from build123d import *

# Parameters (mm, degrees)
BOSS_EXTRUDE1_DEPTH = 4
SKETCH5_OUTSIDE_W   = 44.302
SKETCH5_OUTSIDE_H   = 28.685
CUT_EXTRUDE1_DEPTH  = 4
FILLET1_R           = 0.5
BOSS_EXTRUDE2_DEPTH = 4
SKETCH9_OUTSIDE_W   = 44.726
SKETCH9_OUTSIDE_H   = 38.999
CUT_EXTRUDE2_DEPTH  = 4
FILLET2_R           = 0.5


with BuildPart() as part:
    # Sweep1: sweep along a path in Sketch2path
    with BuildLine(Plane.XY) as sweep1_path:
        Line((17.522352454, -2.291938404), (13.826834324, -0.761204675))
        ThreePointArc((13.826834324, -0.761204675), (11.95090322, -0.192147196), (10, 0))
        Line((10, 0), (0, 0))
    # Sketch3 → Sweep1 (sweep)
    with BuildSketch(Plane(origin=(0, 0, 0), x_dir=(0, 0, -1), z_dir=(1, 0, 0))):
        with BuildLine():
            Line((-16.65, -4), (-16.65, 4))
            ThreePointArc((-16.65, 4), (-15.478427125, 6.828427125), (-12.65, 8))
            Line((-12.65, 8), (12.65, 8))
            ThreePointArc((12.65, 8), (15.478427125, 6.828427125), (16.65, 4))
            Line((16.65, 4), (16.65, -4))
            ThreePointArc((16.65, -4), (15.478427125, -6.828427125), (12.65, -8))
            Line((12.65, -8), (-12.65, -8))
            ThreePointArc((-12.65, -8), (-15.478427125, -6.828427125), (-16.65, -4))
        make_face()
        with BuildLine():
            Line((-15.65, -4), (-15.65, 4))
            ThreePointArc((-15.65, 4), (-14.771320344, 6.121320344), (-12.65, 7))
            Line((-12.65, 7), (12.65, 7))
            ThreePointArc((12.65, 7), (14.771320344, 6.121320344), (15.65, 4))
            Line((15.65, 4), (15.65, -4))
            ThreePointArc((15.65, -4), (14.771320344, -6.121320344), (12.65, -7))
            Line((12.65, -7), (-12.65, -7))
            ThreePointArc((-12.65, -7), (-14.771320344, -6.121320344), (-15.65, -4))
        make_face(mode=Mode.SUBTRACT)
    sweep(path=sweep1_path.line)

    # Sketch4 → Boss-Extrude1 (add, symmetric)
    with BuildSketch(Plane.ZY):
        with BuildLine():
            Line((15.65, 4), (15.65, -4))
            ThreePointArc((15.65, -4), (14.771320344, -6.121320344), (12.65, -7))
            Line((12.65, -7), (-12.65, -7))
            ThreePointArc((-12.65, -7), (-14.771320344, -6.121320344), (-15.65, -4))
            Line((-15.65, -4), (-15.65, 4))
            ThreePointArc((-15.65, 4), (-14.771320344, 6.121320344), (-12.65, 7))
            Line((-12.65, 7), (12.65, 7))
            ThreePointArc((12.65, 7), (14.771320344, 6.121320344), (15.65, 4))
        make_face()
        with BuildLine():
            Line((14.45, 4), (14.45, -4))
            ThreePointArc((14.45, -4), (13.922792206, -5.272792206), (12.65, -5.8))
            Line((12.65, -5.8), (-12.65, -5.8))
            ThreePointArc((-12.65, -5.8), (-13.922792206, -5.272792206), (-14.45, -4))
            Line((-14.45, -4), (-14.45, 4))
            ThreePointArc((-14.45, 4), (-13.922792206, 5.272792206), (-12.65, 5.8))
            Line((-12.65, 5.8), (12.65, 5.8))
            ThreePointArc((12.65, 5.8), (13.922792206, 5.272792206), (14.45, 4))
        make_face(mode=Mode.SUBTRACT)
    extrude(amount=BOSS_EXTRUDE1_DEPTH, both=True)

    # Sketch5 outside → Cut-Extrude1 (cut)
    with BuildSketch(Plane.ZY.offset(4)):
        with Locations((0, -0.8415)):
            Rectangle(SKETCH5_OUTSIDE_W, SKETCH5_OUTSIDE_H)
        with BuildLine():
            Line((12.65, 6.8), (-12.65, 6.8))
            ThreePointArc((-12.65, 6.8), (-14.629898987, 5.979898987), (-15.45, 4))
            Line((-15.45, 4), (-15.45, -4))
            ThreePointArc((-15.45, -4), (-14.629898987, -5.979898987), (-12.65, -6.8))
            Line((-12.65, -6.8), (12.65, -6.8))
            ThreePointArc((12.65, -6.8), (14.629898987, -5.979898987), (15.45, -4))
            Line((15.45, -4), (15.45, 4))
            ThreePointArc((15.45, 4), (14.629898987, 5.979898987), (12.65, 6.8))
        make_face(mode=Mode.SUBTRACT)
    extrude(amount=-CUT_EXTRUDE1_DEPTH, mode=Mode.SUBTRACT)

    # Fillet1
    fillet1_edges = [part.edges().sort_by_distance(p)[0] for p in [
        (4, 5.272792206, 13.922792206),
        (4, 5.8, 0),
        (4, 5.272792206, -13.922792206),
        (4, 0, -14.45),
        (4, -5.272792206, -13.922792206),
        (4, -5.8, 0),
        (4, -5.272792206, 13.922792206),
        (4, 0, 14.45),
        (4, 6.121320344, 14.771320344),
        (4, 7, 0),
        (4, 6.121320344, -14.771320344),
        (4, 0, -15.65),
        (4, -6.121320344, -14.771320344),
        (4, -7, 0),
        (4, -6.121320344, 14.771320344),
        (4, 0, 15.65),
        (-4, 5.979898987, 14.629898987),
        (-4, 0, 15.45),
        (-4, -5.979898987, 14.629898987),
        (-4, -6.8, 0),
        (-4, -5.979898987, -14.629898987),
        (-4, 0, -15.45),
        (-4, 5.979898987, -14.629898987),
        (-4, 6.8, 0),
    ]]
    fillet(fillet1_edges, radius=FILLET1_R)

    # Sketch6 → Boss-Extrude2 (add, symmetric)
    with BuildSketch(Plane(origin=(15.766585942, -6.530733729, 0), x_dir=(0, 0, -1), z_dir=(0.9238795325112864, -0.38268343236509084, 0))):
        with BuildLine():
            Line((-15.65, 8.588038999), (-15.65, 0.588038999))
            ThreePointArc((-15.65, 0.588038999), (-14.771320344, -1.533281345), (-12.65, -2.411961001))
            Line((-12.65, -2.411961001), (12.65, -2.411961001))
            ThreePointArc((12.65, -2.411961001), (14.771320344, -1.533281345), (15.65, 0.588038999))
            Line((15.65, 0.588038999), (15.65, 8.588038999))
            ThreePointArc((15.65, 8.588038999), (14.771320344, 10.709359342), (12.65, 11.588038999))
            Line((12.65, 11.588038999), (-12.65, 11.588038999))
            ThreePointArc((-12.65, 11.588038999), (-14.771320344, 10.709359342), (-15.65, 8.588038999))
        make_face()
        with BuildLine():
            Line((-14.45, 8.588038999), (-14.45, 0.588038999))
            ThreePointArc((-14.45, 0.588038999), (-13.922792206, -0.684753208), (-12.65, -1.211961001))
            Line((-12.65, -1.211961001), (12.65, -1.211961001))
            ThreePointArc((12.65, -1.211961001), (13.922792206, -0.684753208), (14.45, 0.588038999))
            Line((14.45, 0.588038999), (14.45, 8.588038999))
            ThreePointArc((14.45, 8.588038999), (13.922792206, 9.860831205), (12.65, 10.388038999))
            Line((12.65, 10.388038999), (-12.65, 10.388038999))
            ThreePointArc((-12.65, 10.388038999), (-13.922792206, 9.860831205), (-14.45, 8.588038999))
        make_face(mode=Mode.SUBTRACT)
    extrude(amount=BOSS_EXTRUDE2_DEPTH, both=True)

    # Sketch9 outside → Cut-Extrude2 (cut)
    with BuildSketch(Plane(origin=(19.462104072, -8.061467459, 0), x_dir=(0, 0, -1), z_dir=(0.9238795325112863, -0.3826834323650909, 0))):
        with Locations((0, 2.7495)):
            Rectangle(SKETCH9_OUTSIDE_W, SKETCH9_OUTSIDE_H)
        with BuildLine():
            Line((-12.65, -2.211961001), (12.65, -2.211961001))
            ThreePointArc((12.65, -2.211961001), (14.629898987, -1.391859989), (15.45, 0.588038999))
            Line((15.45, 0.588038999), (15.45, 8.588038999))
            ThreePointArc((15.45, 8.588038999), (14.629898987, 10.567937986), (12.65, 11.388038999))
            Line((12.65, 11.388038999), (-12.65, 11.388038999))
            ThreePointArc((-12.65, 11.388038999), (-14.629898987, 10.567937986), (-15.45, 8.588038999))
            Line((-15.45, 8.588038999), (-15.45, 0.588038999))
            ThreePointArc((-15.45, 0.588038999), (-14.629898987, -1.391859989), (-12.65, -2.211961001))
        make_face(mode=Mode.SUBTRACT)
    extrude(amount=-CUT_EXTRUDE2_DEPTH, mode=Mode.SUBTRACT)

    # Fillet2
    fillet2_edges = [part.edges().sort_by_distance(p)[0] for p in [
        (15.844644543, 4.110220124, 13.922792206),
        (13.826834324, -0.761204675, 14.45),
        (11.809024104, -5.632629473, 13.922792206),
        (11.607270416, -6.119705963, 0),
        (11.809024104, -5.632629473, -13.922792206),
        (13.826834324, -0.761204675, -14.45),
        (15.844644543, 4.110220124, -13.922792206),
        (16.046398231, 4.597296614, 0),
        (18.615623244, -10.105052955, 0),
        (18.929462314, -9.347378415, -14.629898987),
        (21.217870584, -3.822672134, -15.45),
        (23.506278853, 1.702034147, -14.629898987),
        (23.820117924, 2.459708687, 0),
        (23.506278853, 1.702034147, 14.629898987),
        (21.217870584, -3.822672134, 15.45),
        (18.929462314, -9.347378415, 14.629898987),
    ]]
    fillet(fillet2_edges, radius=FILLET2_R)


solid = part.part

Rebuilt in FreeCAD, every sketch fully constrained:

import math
import FreeCAD as App
import Part
import Sketcher

V = App.Vector
Q = App.Units.Quantity


def edges_at(feature, points):
    """Names of the edges that pass closest to the given points."""
    edges = feature.Shape.Edges
    near = lambda p: min(range(len(edges)), key=lambda i: edges[i].distToShape(Part.Vertex(*p))[0])
    return sorted({f"Edge{near(p) + 1}" for p in points})

doc = App.newDocument("Part")
body = doc.addObject("PartDesign::Body", "Body")

sketch1 = body.newObject("Sketcher::SketchObject", "Sketch")
sketch1.AttachmentSupport = (doc.getObject("YZ_Plane"), [""])
sketch1.MapMode = "FlatFace"
sketch1.addGeometry([
    Part.LineSegment(V(4, 16.6, 0), V(-4, 16.6, 0)),
    Part.ArcOfCircle(Part.Circle(V(-4, 12.7, 0), V(0, 0, 1), 4), math.radians(90), math.radians(180)),
    Part.LineSegment(V(-8, 12.7, 0), V(-8, -12.7, 0)),
    Part.ArcOfCircle(Part.Circle(V(-4, -12.7, 0), V(0, 0, 1), 4), math.radians(180), math.radians(270)),
    Part.LineSegment(V(-4, -16.6, 0), V(4, -16.6, 0)),
    Part.ArcOfCircle(Part.Circle(V(4, -12.7, 0), V(0, 0, 1), 4), math.radians(-90), math.radians(0)),
    Part.LineSegment(V(8, -12.7, 0), V(8, 12.7, 0)),
    Part.ArcOfCircle(Part.Circle(V(4, 12.7, 0), V(0, 0, 1), 4), math.radians(0), math.radians(90)),
    Part.LineSegment(V(-4, 15.7, 0), V(4, 15.7, 0)),
    Part.ArcOfCircle(Part.Circle(V(4, 12.7, 0), V(0, 0, 1), 3), math.radians(0), math.radians(90)),
    Part.LineSegment(V(7, 12.7, 0), V(7, -12.7, 0)),
    Part.ArcOfCircle(Part.Circle(V(4, -12.7, 0), V(0, 0, 1), 3), math.radians(-90), math.radians(0)),
    Part.LineSegment(V(4, -15.7, 0), V(-4, -15.7, 0)),
    Part.ArcOfCircle(Part.Circle(V(-4, -12.7, 0), V(0, 0, 1), 3), math.radians(180), math.radians(270)),
    Part.LineSegment(V(-7, -12.7, 0), V(-7, 12.7, 0)),
    Part.ArcOfCircle(Part.Circle(V(-4, 12.7, 0), V(0, 0, 1), 3), math.radians(90), math.radians(180)),
], False)
sketch1.addConstraint([
    Sketcher.Constraint("Tangent", 0, 2, 1, 1),
    Sketcher.Constraint("Tangent", 1, 2, 2, 1),
    Sketcher.Constraint("Tangent", 2, 2, 3, 1),
    Sketcher.Constraint("Tangent", 3, 2, 4, 1),
    Sketcher.Constraint("Tangent", 4, 2, 5, 1),
    Sketcher.Constraint("Tangent", 5, 2, 6, 1),
    Sketcher.Constraint("Tangent", 6, 2, 7, 1),
    Sketcher.Constraint("Tangent", 7, 2, 0, 1),
    Sketcher.Constraint("Tangent", 8, 2, 9, 2),
    Sketcher.Constraint("Tangent", 9, 1, 10, 1),
    Sketcher.Constraint("Tangent", 10, 2, 11, 2),
    Sketcher.Constraint("Tangent", 11, 1, 12, 1),
    Sketcher.Constraint("Tangent", 12, 2, 13, 2),
    Sketcher.Constraint("Tangent", 13, 1, 14, 1),
    Sketcher.Constraint("Tangent", 14, 2, 15, 2),
    Sketcher.Constraint("Tangent", 15, 1, 8, 1),
    Sketcher.Constraint("Horizontal", 0),
    Sketcher.Constraint("Vertical", 2),
    Sketcher.Constraint("Horizontal", 4),
    Sketcher.Constraint("Vertical", 6),
    Sketcher.Constraint("Horizontal", 8),
    Sketcher.Constraint("Vertical", 10),
    Sketcher.Constraint("Horizontal", 12),
    Sketcher.Constraint("Vertical", 14),
    Sketcher.Constraint("Coincident", 9, 3, 7, 3),
    Sketcher.Constraint("Coincident", 11, 3, 5, 3),
    Sketcher.Constraint("Coincident", 13, 3, 3, 3),
    Sketcher.Constraint("Equal", 1, 3),
    Sketcher.Constraint("Equal", 3, 5),
    Sketcher.Constraint("Equal", 5, 7),
    Sketcher.Constraint("Equal", 13, 15),
    Sketcher.Constraint("Symmetric", 1, 3, 5, 3, -1, 1),
    Sketcher.Constraint("Radius", 1, 4.0),
    Sketcher.Constraint("Radius", 9, 3.0),
    Sketcher.Constraint("DistanceX", 0, 2, 0, 1, 8.0),
    Sketcher.Constraint("DistanceY", 2, 2, 2, 1, 25.3),
])

sketch2 = body.newObject("Sketcher::SketchObject", "Sketch001")
sketch2.AttachmentSupport = (doc.getObject("XY_Plane"), [""])
sketch2.MapMode = "FlatFace"
sketch2.addGeometry([
    Part.LineSegment(V(17.5, -2.3, 0), V(13.8, -0.8, 0)),
    Part.ArcOfCircle(Part.Circle(V(10, -10, 0), V(0, 0, 1), 10), math.radians(68), math.radians(90)),
    Part.LineSegment(V(10, 0, 0), V(0, 0, 0)),
], False)
sketch2.addConstraint([
    Sketcher.Constraint("Tangent", 0, 2, 1, 1),
    Sketcher.Constraint("Tangent", 1, 2, 2, 1),
    Sketcher.Constraint("Horizontal", 2),
    Sketcher.Constraint("Coincident", 2, 2, -1, 1),
    Sketcher.Constraint("Radius", 1, 10.0),
    Sketcher.Constraint("DistanceX", 2, 2, 2, 1, 10.0),
    Sketcher.Constraint("Distance", 0, 4.0),
    Sketcher.Constraint("Angle", 0, Q("157.5 deg")),
])
doc.recompute()

additivepipe = body.newObject("PartDesign::AdditivePipe", "AdditivePipe")
additivepipe.Profile = sketch1
additivepipe.Spine = (sketch2, ["Edge1", "Edge2", "Edge3"])

sketch3 = body.newObject("Sketcher::SketchObject", "Sketch002")
sketch3.AttachmentSupport = (doc.getObject("YZ_Plane"), [""])
sketch3.MapMode = "FlatFace"
sketch3.addGeometry([
    Part.LineSegment(V(-4, 15.7, 0), V(4, 15.7, 0)),
    Part.ArcOfCircle(Part.Circle(V(4, 12.7, 0), V(0, 0, 1), 3), math.radians(0), math.radians(90)),
    Part.LineSegment(V(7, 12.7, 0), V(7, -12.7, 0)),
    Part.ArcOfCircle(Part.Circle(V(4, -12.7, 0), V(0, 0, 1), 3), math.radians(-90), math.radians(0)),
    Part.LineSegment(V(4, -15.7, 0), V(-4, -15.7, 0)),
    Part.ArcOfCircle(Part.Circle(V(-4, -12.7, 0), V(0, 0, 1), 3), math.radians(180), math.radians(270)),
    Part.LineSegment(V(-7, -12.7, 0), V(-7, 12.7, 0)),
    Part.ArcOfCircle(Part.Circle(V(-4, 12.7, 0), V(0, 0, 1), 3), math.radians(90), math.radians(180)),
    Part.LineSegment(V(4, 14.4, 0), V(-4, 14.4, 0)),
    Part.ArcOfCircle(Part.Circle(V(-4, 12.7, 0), V(0, 0, 1), 1.8), math.radians(90), math.radians(180)),
    Part.LineSegment(V(-5.8, 12.7, 0), V(-5.8, -12.7, 0)),
    Part.ArcOfCircle(Part.Circle(V(-4, -12.7, 0), V(0, 0, 1), 1.8), math.radians(180), math.radians(270)),
    Part.LineSegment(V(-4, -14.4, 0), V(4, -14.4, 0)),
    Part.ArcOfCircle(Part.Circle(V(4, -12.7, 0), V(0, 0, 1), 1.8), math.radians(-90), math.radians(0)),
    Part.LineSegment(V(5.8, -12.7, 0), V(5.8, 12.7, 0)),
    Part.ArcOfCircle(Part.Circle(V(4, 12.7, 0), V(0, 0, 1), 1.8), math.radians(0), math.radians(90)),
], False)
sketch3.addConstraint([
    Sketcher.Constraint("Tangent", 0, 2, 1, 2),
    Sketcher.Constraint("Tangent", 1, 1, 2, 1),
    Sketcher.Constraint("Tangent", 2, 2, 3, 2),
    Sketcher.Constraint("Tangent", 3, 1, 4, 1),
    Sketcher.Constraint("Tangent", 4, 2, 5, 2),
    Sketcher.Constraint("Tangent", 5, 1, 6, 1),
    Sketcher.Constraint("Tangent", 6, 2, 7, 2),
    Sketcher.Constraint("Tangent", 7, 1, 0, 1),
    Sketcher.Constraint("Tangent", 8, 2, 9, 1),
    Sketcher.Constraint("Tangent", 9, 2, 10, 1),
    Sketcher.Constraint("Tangent", 10, 2, 11, 1),
    Sketcher.Constraint("Tangent", 11, 2, 12, 1),
    Sketcher.Constraint("Tangent", 12, 2, 13, 1),
    Sketcher.Constraint("Tangent", 13, 2, 14, 1),
    Sketcher.Constraint("Tangent", 14, 2, 15, 1),
    Sketcher.Constraint("Tangent", 15, 2, 8, 1),
    Sketcher.Constraint("Horizontal", 0),
    Sketcher.Constraint("Vertical", 2),
    Sketcher.Constraint("Horizontal", 4),
    Sketcher.Constraint("Vertical", 6),
    Sketcher.Constraint("Horizontal", 8),
    Sketcher.Constraint("Vertical", 10),
    Sketcher.Constraint("Horizontal", 12),
    Sketcher.Constraint("Vertical", 14),
    Sketcher.Constraint("Coincident", 9, 3, 7, 3),
    Sketcher.Constraint("Coincident", 11, 3, 5, 3),
    Sketcher.Constraint("Coincident", 13, 3, 3, 3),
    Sketcher.Constraint("Equal", 1, 3),
    Sketcher.Constraint("Equal", 3, 5),
    Sketcher.Constraint("Equal", 5, 7),
    Sketcher.Constraint("Equal", 13, 15),
    Sketcher.Constraint("Symmetric", 1, 3, 5, 3, -1, 1),
    Sketcher.Constraint("Radius", 1, 3.0),
    Sketcher.Constraint("Radius", 9, 1.8),
    Sketcher.Constraint("DistanceX", 0, 1, 0, 2, 8.0),
    Sketcher.Constraint("DistanceY", 2, 2, 2, 1, 25.3),
])
pad1 = body.newObject("PartDesign::Pad", "Pad")
pad1.Profile = sketch3
pad1.Length = 8
pad1.Midplane = True

sketch4 = body.newObject("Sketcher::SketchObject", "Sketch003")
sketch4.AttachmentSupport = (doc.getObject("YZ_Plane"), [""])
sketch4.MapMode = "FlatFace"
sketch4.AttachmentOffset = App.Placement(V(0, 0, -4), App.Rotation())
sketch4.addGeometry([
    Part.LineSegment(V(13.5, -22.2, 0), V(-15.2, -22.2, 0)),
    Part.LineSegment(V(-15.2, -22.2, 0), V(-15.2, 22.2, 0)),
    Part.LineSegment(V(-15.2, 22.2, 0), V(13.5, 22.2, 0)),
    Part.LineSegment(V(13.5, 22.2, 0), V(13.5, -22.2, 0)),
    Part.LineSegment(V(6.8, -12.7, 0), V(6.8, 12.7, 0)),
    Part.ArcOfCircle(Part.Circle(V(4, 12.6, 0), V(0, 0, 1), 2.8), math.radians(0), math.radians(90)),
    Part.LineSegment(V(4, 15.4, 0), V(-4, 15.4, 0)),
    Part.ArcOfCircle(Part.Circle(V(-4, 12.6, 0), V(0, 0, 1), 2.8), math.radians(90), math.radians(180)),
    Part.LineSegment(V(-6.8, 12.7, 0), V(-6.8, -12.7, 0)),
    Part.ArcOfCircle(Part.Circle(V(-4, -12.6, 0), V(0, 0, 1), 2.8), math.radians(-180), math.radians(-90)),
    Part.LineSegment(V(-4, -15.4, 0), V(4, -15.4, 0)),
    Part.ArcOfCircle(Part.Circle(V(4, -12.6, 0), V(0, 0, 1), 2.8), math.radians(-90), math.radians(0)),
], False)
sketch4.addConstraint([
    Sketcher.Constraint("Coincident", 0, 2, 1, 1),
    Sketcher.Constraint("Coincident", 1, 2, 2, 1),
    Sketcher.Constraint("Coincident", 2, 2, 3, 1),
    Sketcher.Constraint("Coincident", 3, 2, 0, 1),
    Sketcher.Constraint("Tangent", 4, 2, 5, 1),
    Sketcher.Constraint("Tangent", 5, 2, 6, 1),
    Sketcher.Constraint("Tangent", 6, 2, 7, 1),
    Sketcher.Constraint("Tangent", 7, 2, 8, 1),
    Sketcher.Constraint("Tangent", 8, 2, 9, 1),
    Sketcher.Constraint("Tangent", 9, 2, 10, 1),
    Sketcher.Constraint("Tangent", 10, 2, 11, 1),
    Sketcher.Constraint("Tangent", 11, 2, 4, 1),
    Sketcher.Constraint("Horizontal", 0),
    Sketcher.Constraint("Vertical", 1),
    Sketcher.Constraint("Horizontal", 2),
    Sketcher.Constraint("Vertical", 3),
    Sketcher.Constraint("Vertical", 4),
    Sketcher.Constraint("Horizontal", 6),
    Sketcher.Constraint("Vertical", 8),
    Sketcher.Constraint("Horizontal", 10),
    Sketcher.Constraint("Equal", 5, 7),
    Sketcher.Constraint("Equal", 7, 9),
    Sketcher.Constraint("Equal", 9, 11),
    Sketcher.Constraint("Symmetric", 5, 3, 9, 3, -1, 1),
    Sketcher.Constraint("Radius", 5, 2.8),
    Sketcher.Constraint("DistanceX", 6, 2, 6, 1, 8.0),
    Sketcher.Constraint("DistanceY", 4, 1, 4, 2, 25.3),
    Sketcher.Constraint("DistanceX", 0, 2, 0, 1, 28.685),
    Sketcher.Constraint("DistanceY", 1, 1, 1, 2, 44.302),
    Sketcher.Constraint("DistanceX", 0, 2, -1, 1, 15.184),
    Sketcher.Constraint("DistanceY", 0, 2, -1, 1, 22.151),
])
pocket1 = body.newObject("PartDesign::Pocket", "Pocket")
pocket1.Profile = sketch4
pocket1.Length = 4
pocket1.Reversed = True
doc.recompute()

fillet = body.newObject("PartDesign::Fillet", "Fillet")
fillet.Base = (pocket1, edges_at(pocket1, [
    (4, 5.273, 13.923),
    (4, 5.8, 0),
    (4, 5.273, -13.923),
    (4, 0, -14.45),
    (4, -5.273, -13.923),
    (4, -5.8, 0),
    (4, -5.273, 13.923),
    (4, 0, 14.45),
    (4, 6.121, 14.771),
    (4, 7, 0),
    (4, 6.121, -14.771),
    (4, 0, -15.65),
    (4, -6.121, -14.771),
    (4, -7, 0),
    (4, -6.121, 14.771),
    (4, 0, 15.65),
    (-4, 5.98, 14.63),
    (-4, 0, 15.45),
    (-4, -5.98, 14.63),
    (-4, -6.8, 0),
    (-4, -5.98, -14.63),
    (-4, 0, -15.45),
    (-4, 5.98, -14.63),
    (-4, 6.8, 0),
]))
fillet.Radius = 0.5

sketch5 = body.newObject("Sketcher::SketchObject", "Sketch004")
sketch5.Placement = App.Placement(V(15.766586, -6.530734, 0), App.Rotation(V(0, 0, -1), V(0.382683432, 0.923879533, 0), V(0.923879533, -0.382683432, 0), "ZXY"))
sketch5.addGeometry([
    Part.LineSegment(V(-15.7, 8.6, 0), V(-15.7, 0.6, 0)),
    Part.ArcOfCircle(Part.Circle(V(-12.7, 0.6, 0), V(0, 0, 1), 3), math.radians(180), math.radians(270)),
    Part.LineSegment(V(-12.7, -2.4, 0), V(12.7, -2.4, 0)),
    Part.ArcOfCircle(Part.Circle(V(12.7, 0.6, 0), V(0, 0, 1), 3), math.radians(-90), math.radians(0)),
    Part.LineSegment(V(15.7, 0.6, 0), V(15.7, 8.6, 0)),
    Part.ArcOfCircle(Part.Circle(V(12.7, 8.6, 0), V(0, 0, 1), 3), math.radians(0), math.radians(90)),
    Part.LineSegment(V(12.7, 11.6, 0), V(-12.7, 11.6, 0)),
    Part.ArcOfCircle(Part.Circle(V(-12.7, 8.6, 0), V(0, 0, 1), 3), math.radians(90), math.radians(180)),
    Part.LineSegment(V(-14.4, 0.6, 0), V(-14.4, 8.6, 0)),
    Part.ArcOfCircle(Part.Circle(V(-12.7, 8.6, 0), V(0, 0, 1), 1.8), math.radians(90), math.radians(180)),
    Part.LineSegment(V(-12.7, 10.4, 0), V(12.7, 10.4, 0)),
    Part.ArcOfCircle(Part.Circle(V(12.7, 8.6, 0), V(0, 0, 1), 1.8), math.radians(0), math.radians(90)),
    Part.LineSegment(V(14.4, 8.6, 0), V(14.4, 0.6, 0)),
    Part.ArcOfCircle(Part.Circle(V(12.7, 0.6, 0), V(0, 0, 1), 1.8), math.radians(-90), math.radians(0)),
    Part.LineSegment(V(12.7, -1.2, 0), V(-12.7, -1.2, 0)),
    Part.ArcOfCircle(Part.Circle(V(-12.7, 0.6, 0), V(0, 0, 1), 1.8), math.radians(180), math.radians(270)),
], False)
sketch5.addConstraint([
    Sketcher.Constraint("Tangent", 0, 2, 1, 1),
    Sketcher.Constraint("Tangent", 1, 2, 2, 1),
    Sketcher.Constraint("Tangent", 2, 2, 3, 1),
    Sketcher.Constraint("Tangent", 3, 2, 4, 1),
    Sketcher.Constraint("Tangent", 4, 2, 5, 1),
    Sketcher.Constraint("Tangent", 5, 2, 6, 1),
    Sketcher.Constraint("Tangent", 6, 2, 7, 1),
    Sketcher.Constraint("Tangent", 7, 2, 0, 1),
    Sketcher.Constraint("Tangent", 8, 2, 9, 2),
    Sketcher.Constraint("Tangent", 9, 1, 10, 1),
    Sketcher.Constraint("Tangent", 10, 2, 11, 2),
    Sketcher.Constraint("Tangent", 11, 1, 12, 1),
    Sketcher.Constraint("Tangent", 12, 2, 13, 2),
    Sketcher.Constraint("Tangent", 13, 1, 14, 1),
    Sketcher.Constraint("Tangent", 14, 2, 15, 2),
    Sketcher.Constraint("Tangent", 15, 1, 8, 1),
    Sketcher.Constraint("Vertical", 0),
    Sketcher.Constraint("Horizontal", 2),
    Sketcher.Constraint("Vertical", 4),
    Sketcher.Constraint("Horizontal", 6),
    Sketcher.Constraint("Vertical", 8),
    Sketcher.Constraint("Horizontal", 10),
    Sketcher.Constraint("Vertical", 12),
    Sketcher.Constraint("Horizontal", 14),
    Sketcher.Constraint("Coincident", 9, 3, 7, 3),
    Sketcher.Constraint("Coincident", 11, 3, 5, 3),
    Sketcher.Constraint("Coincident", 13, 3, 3, 3),
    Sketcher.Constraint("Equal", 1, 3),
    Sketcher.Constraint("Equal", 3, 5),
    Sketcher.Constraint("Equal", 5, 7),
    Sketcher.Constraint("Equal", 13, 15),
    Sketcher.Constraint("Radius", 1, 3.0),
    Sketcher.Constraint("Radius", 9, 1.8),
    Sketcher.Constraint("DistanceY", 0, 2, 0, 1, 8.0),
    Sketcher.Constraint("DistanceX", 2, 1, 2, 2, 25.3),
    Sketcher.Constraint("DistanceX", 1, 3, -1, 1, 12.65),
    Sketcher.Constraint("DistanceY", -1, 1, 1, 3, 0.588039),
])
pad2 = body.newObject("PartDesign::Pad", "Pad001")
pad2.Profile = sketch5
pad2.Length = 8
pad2.Midplane = True

sketch6 = body.newObject("Sketcher::SketchObject", "Sketch005")
sketch6.Placement = App.Placement(V(19.462104, -8.061467, 0), App.Rotation(V(0, 0, -1), V(0.382683432, 0.923879533, 0), V(0.923879533, -0.382683432, 0), "ZXY"))
sketch6.addGeometry([
    Part.LineSegment(V(-22.4, 22.2, 0), V(-22.4, -16.8, 0)),
    Part.LineSegment(V(-22.4, -16.8, 0), V(22.4, -16.8, 0)),
    Part.LineSegment(V(22.4, -16.8, 0), V(22.4, 22.2, 0)),
    Part.LineSegment(V(22.4, 22.2, 0), V(-22.4, 22.2, 0)),
    Part.LineSegment(V(12.7, -2.2, 0), V(-12.7, -2.2, 0)),
    Part.ArcOfCircle(Part.Circle(V(-12.7, 0.6, 0), V(0, 0, 1), 2.8), math.radians(180), math.radians(270)),
    Part.LineSegment(V(-15.4, 0.6, 0), V(-15.4, 8.6, 0)),
    Part.ArcOfCircle(Part.Circle(V(-12.6, 8.6, 0), V(0, 0, 1), 2.8), math.radians(90), math.radians(180)),
    Part.LineSegment(V(-12.7, 11.4, 0), V(12.7, 11.4, 0)),
    Part.ArcOfCircle(Part.Circle(V(12.6, 8.6, 0), V(0, 0, 1), 2.8), math.radians(0), math.radians(90)),
    Part.LineSegment(V(15.4, 8.6, 0), V(15.4, 0.6, 0)),
    Part.ArcOfCircle(Part.Circle(V(12.7, 0.6, 0), V(0, 0, 1), 2.8), math.radians(-90), math.radians(0)),
], False)
sketch6.addConstraint([
    Sketcher.Constraint("Coincident", 0, 2, 1, 1),
    Sketcher.Constraint("Coincident", 1, 2, 2, 1),
    Sketcher.Constraint("Coincident", 2, 2, 3, 1),
    Sketcher.Constraint("Coincident", 3, 2, 0, 1),
    Sketcher.Constraint("Tangent", 4, 2, 5, 2),
    Sketcher.Constraint("Tangent", 5, 1, 6, 1),
    Sketcher.Constraint("Tangent", 6, 2, 7, 2),
    Sketcher.Constraint("Tangent", 7, 1, 8, 1),
    Sketcher.Constraint("Tangent", 8, 2, 9, 2),
    Sketcher.Constraint("Tangent", 9, 1, 10, 1),
    Sketcher.Constraint("Tangent", 10, 2, 11, 2),
    Sketcher.Constraint("Tangent", 11, 1, 4, 1),
    Sketcher.Constraint("Vertical", 0),
    Sketcher.Constraint("Horizontal", 1),
    Sketcher.Constraint("Vertical", 2),
    Sketcher.Constraint("Horizontal", 3),
    Sketcher.Constraint("Horizontal", 4),
    Sketcher.Constraint("Vertical", 6),
    Sketcher.Constraint("Horizontal", 8),
    Sketcher.Constraint("Vertical", 10),
    Sketcher.Constraint("Equal", 5, 7),
    Sketcher.Constraint("Equal", 7, 9),
    Sketcher.Constraint("Equal", 9, 11),
    Sketcher.Constraint("Radius", 5, 2.8),
    Sketcher.Constraint("DistanceY", 6, 1, 6, 2, 8.0),
    Sketcher.Constraint("DistanceX", 4, 2, 4, 1, 25.3),
    Sketcher.Constraint("DistanceX", 1, 1, 1, 2, 44.726),
    Sketcher.Constraint("DistanceY", 0, 2, 0, 1, 38.999),
    Sketcher.Constraint("DistanceX", 5, 3, -1, 1, 12.65),
    Sketcher.Constraint("DistanceY", 0, 2, -1, 1, 16.75),
    Sketcher.Constraint("DistanceX", 0, 2, -1, 1, 22.363),
    Sketcher.Constraint("DistanceY", -1, 1, 5, 3, 0.588039),
])
pocket2 = body.newObject("PartDesign::Pocket", "Pocket001")
pocket2.Profile = sketch6
pocket2.Length = 4
doc.recompute()

fillet2 = body.newObject("PartDesign::Fillet", "Fillet001")
fillet2.Base = (pocket2, edges_at(pocket2, [
    (15.845, 4.11, 13.923),
    (13.827, -0.761, 14.45),
    (11.809, -5.633, 13.923),
    (11.607, -6.12, 0),
    (11.809, -5.633, -13.923),
    (13.827, -0.761, -14.45),
    (15.845, 4.11, -13.923),
    (16.046, 4.597, 0),
    (18.616, -10.105, 0),
    (18.929, -9.347, -14.63),
    (21.218, -3.823, -15.45),
    (23.506, 1.702, -14.63),
    (23.82, 2.46, 0),
    (23.506, 1.702, 14.63),
    (21.218, -3.823, 15.45),
    (18.929, -9.347, 14.63),
]))
fillet2.Radius = 0.5

doc.recompute()
